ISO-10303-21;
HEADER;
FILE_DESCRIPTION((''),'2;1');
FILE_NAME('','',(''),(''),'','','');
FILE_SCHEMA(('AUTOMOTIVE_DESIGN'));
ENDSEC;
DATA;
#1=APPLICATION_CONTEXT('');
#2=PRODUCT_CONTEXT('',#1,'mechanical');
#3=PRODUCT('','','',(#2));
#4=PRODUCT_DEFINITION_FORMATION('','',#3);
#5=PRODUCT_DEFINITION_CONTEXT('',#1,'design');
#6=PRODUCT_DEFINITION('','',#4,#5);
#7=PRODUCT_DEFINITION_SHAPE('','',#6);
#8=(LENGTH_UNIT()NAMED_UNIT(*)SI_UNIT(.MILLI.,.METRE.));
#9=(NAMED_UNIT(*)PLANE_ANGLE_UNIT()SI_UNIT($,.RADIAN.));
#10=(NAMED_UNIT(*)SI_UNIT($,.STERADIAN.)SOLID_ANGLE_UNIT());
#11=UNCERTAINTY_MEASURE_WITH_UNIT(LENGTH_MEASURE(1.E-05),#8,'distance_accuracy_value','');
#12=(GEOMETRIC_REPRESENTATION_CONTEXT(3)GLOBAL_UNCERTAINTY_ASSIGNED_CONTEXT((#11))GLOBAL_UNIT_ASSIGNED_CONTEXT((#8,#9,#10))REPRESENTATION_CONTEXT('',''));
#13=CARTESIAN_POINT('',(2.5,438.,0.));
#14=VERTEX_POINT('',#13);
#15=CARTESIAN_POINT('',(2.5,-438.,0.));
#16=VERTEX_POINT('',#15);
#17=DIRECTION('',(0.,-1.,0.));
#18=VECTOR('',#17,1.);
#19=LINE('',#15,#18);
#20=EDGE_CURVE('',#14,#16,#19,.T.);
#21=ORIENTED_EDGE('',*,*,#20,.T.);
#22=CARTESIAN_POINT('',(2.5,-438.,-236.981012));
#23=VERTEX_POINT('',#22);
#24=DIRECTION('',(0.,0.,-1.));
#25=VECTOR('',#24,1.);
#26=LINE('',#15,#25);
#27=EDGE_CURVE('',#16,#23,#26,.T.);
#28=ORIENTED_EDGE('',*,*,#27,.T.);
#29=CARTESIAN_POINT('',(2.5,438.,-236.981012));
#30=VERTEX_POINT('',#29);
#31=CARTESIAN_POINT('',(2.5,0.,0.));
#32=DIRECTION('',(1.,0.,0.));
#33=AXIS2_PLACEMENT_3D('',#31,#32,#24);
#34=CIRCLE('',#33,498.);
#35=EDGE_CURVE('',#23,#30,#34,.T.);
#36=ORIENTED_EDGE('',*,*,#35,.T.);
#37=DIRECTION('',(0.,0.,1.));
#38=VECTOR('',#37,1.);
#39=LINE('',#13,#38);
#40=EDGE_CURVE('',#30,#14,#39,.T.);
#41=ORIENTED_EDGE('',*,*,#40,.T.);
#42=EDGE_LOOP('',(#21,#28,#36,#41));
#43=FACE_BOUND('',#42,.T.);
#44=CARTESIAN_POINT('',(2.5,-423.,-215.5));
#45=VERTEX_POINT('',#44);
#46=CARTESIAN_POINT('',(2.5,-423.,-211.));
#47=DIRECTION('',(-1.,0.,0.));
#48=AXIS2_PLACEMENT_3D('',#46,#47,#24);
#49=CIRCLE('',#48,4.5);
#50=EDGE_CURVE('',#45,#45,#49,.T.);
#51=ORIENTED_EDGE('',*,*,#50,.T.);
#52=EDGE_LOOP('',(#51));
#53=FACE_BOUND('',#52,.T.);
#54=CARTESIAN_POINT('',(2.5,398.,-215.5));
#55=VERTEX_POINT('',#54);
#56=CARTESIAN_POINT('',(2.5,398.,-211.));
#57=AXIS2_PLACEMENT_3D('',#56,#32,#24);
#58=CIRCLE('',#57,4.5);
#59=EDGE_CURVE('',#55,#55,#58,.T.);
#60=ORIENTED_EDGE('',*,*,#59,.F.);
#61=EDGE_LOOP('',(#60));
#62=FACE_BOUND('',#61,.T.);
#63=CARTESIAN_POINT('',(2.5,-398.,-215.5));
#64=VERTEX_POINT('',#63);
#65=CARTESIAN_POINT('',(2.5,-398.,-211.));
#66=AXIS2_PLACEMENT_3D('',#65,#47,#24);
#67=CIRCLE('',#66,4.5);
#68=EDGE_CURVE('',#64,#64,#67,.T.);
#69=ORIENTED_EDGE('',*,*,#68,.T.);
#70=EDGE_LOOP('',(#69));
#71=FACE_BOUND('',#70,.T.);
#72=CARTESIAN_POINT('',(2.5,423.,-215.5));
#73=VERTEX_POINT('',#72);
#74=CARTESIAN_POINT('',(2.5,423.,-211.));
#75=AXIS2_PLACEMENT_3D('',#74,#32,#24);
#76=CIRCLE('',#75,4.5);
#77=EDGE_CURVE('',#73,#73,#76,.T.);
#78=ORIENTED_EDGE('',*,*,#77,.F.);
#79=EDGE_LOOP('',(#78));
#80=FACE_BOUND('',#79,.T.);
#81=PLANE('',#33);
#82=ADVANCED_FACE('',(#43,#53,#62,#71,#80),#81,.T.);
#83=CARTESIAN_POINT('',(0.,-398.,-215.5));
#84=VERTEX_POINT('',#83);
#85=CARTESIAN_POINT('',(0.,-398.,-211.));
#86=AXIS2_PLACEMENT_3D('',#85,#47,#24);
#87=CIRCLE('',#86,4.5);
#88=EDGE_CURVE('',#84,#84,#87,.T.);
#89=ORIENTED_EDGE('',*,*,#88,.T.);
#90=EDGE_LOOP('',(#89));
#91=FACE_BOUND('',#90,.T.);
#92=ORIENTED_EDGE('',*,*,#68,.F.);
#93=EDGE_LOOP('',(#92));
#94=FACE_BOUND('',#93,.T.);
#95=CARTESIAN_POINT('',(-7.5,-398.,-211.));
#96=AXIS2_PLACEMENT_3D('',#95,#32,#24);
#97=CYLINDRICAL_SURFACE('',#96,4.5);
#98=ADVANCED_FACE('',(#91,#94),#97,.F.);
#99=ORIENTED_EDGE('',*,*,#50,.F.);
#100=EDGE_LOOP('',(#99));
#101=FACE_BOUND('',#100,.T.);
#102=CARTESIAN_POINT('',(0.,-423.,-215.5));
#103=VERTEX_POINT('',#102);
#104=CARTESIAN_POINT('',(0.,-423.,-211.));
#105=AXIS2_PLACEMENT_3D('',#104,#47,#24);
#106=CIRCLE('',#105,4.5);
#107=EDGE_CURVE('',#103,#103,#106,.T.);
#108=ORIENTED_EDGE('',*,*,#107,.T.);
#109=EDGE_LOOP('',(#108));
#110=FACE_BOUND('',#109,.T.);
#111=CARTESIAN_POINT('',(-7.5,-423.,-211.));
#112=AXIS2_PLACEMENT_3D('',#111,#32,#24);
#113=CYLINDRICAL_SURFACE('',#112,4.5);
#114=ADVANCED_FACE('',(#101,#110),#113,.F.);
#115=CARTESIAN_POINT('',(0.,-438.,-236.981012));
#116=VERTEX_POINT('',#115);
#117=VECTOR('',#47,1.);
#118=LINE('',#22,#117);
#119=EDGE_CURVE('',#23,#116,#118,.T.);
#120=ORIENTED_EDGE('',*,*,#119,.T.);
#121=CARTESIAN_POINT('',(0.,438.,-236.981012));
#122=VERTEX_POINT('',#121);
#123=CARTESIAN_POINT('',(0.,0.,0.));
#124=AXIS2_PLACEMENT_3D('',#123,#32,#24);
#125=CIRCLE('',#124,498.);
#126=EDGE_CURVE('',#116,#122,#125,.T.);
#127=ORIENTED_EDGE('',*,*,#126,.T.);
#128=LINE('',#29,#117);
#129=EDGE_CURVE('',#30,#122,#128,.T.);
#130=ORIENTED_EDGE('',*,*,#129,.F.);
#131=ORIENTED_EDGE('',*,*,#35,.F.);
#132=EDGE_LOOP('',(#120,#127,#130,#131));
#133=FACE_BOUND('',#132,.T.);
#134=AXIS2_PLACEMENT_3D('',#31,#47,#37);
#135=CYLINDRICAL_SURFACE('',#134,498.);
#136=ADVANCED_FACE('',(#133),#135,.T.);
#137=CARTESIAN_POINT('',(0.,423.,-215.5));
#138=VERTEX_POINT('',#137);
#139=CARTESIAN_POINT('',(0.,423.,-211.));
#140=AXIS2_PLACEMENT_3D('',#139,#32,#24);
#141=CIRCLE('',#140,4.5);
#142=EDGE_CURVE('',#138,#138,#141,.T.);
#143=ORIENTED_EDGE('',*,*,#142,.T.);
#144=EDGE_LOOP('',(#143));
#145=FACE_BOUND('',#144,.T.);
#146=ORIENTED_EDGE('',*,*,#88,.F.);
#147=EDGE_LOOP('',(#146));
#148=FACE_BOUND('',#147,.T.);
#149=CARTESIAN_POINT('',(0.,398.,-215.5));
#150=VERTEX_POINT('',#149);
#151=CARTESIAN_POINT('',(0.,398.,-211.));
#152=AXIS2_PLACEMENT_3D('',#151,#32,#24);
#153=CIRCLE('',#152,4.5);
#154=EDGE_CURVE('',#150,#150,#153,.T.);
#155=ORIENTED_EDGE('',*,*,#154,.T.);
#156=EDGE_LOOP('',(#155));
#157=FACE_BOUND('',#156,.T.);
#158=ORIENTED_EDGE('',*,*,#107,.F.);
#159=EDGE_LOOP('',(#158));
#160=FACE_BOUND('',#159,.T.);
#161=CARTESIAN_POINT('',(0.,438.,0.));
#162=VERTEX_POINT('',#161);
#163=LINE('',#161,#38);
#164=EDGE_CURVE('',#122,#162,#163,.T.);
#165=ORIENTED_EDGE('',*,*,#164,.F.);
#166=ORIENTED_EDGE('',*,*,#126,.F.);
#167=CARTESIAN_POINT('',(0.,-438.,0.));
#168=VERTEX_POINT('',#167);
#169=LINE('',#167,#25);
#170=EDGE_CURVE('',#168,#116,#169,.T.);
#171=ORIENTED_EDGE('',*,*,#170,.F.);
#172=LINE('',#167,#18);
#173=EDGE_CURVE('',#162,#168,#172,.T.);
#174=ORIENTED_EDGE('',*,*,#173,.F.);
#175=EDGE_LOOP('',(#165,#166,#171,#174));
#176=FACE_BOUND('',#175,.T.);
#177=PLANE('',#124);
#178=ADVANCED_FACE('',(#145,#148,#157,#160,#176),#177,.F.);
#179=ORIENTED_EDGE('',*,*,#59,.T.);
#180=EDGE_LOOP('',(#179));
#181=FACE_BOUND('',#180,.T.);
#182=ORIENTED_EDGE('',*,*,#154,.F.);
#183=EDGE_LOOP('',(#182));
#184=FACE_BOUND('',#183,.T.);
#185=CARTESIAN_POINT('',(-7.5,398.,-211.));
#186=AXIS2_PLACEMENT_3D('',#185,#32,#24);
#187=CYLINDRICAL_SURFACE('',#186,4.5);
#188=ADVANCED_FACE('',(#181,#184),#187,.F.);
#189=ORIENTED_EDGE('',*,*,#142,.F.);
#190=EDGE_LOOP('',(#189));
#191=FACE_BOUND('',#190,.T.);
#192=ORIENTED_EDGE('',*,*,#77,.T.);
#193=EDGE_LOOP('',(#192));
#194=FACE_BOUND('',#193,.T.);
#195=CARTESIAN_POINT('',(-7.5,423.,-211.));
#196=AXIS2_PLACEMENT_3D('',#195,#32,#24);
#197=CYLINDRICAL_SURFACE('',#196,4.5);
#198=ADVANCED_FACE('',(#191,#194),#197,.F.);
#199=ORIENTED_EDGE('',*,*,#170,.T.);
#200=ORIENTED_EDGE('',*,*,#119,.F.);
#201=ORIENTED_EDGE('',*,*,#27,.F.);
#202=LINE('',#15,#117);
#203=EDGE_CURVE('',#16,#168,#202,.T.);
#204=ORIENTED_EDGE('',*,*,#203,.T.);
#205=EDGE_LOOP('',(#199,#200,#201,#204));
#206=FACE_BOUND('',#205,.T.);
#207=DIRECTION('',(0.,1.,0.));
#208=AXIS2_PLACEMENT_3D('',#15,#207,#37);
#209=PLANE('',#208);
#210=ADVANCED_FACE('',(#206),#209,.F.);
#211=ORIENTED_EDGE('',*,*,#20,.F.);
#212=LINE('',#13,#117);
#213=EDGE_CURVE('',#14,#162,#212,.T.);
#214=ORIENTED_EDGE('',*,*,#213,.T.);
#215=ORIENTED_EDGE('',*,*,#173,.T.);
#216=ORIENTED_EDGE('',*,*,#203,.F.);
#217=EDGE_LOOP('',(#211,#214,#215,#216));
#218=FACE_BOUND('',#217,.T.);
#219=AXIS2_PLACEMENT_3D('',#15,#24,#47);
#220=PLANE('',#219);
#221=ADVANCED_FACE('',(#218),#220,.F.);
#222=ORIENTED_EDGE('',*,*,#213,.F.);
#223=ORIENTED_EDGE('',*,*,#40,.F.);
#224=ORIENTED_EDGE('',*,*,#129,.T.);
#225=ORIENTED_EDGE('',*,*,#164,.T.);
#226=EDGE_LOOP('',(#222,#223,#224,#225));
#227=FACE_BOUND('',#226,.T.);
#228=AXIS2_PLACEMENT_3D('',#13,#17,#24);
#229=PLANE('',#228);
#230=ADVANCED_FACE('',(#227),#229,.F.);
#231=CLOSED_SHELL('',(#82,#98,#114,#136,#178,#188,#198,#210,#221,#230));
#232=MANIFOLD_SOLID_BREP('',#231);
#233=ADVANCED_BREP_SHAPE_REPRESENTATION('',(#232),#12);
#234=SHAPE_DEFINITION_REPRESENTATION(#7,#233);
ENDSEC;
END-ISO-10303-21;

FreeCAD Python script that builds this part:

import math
import FreeCAD as App
import Part
import Sketcher

doc = App.newDocument("Part")
body = doc.addObject("PartDesign::Body", "Body")

# Sketch on YZ plane
sketch1 = body.newObject("Sketcher::SketchObject", "Sketch")
sketch1.AttachmentSupport = (doc.getObject("YZ_Plane"), [""])
sketch1.MapMode = "FlatFace"
sketch1.addGeometry([
    Part.LineSegment(App.Vector(438, -237, 0), App.Vector(438, 0, 0)),
    Part.LineSegment(App.Vector(438, 0, 0), App.Vector(-438, 0, 0)),
    Part.LineSegment(App.Vector(-438, 0, 0), App.Vector(-438, -237, 0)),
    Part.ArcOfCircle(Part.Circle(App.Vector(0, 0, 0), App.Vector(0, 0, 1), 498), math.radians(-152), math.radians(-28)),
], False)
sketch1.addConstraint([
    Sketcher.Constraint("Coincident", 0, 2, 1, 1),
    Sketcher.Constraint("Coincident", 1, 2, 2, 1),
    Sketcher.Constraint("Coincident", 2, 2, 3, 1),
    Sketcher.Constraint("Coincident", 3, 2, 0, 1),
    Sketcher.Constraint("Vertical", 0),
    Sketcher.Constraint("Horizontal", 1),
    Sketcher.Constraint("Vertical", 2),
    Sketcher.Constraint("Coincident", 3, 3, -1, 1),
    Sketcher.Constraint("Symmetric", 0, 2, 1, 2, -1, 1),
    Sketcher.Constraint("Radius", 3, 498.0),
    Sketcher.Constraint("DistanceX", 1, 2, 1, 1, 876.0),
])
pad1 = body.newObject("PartDesign::Pad", "Pad")
pad1.Profile = sketch1
pad1.Length = 2.5

# Sketch on YZ plane
sketch2 = body.newObject("Sketcher::SketchObject", "Sketch001")
sketch2.AttachmentSupport = (doc.getObject("YZ_Plane"), [""])
sketch2.MapMode = "FlatFace"
sketch2.AttachmentOffset = App.Placement(App.Vector(0, 0, 2.5), App.Rotation())
sketch2.addGeometry(Part.Circle(App.Vector(423, -211, 0), App.Vector(0, 0, 1), 4.5), False)
sketch2.addConstraint([
    Sketcher.Constraint("Diameter", 0, 9.0),
    Sketcher.Constraint("DistanceX", -1, 1, 0, 3, 423.0),
    Sketcher.Constraint("DistanceY", 0, 3, -1, 1, 211.0),
])
pocket1 = body.newObject("PartDesign::Pocket", "Pocket")
pocket1.Profile = sketch2
pocket1.Length = 10
doc.recompute()

linearpattern = body.newObject("PartDesign::LinearPattern", "LinearPattern")
linearpattern.Originals = [pocket1]
linearpattern.Direction = (doc.getObject("Y_Axis"), [""])
linearpattern.Mode = "offset"
linearpattern.Offset = 25
linearpattern.Occurrences = 2
linearpattern.Reversed = True
body.Tip = linearpattern
doc.recompute()

mirrored = body.newObject("PartDesign::Mirrored", "Mirrored")
mirrored.Originals = [pocket1]
mirrored.MirrorPlane = (doc.getObject("XZ_Plane"), [""])
body.Tip = mirrored

# Sketch on YZ plane
sketch3 = body.newObject("Sketcher::SketchObject", "Sketch002")
sketch3.AttachmentSupport = (doc.getObject("YZ_Plane"), [""])
sketch3.MapMode = "FlatFace"
sketch3.AttachmentOffset = App.Placement(App.Vector(0, 0, 2.5), App.Rotation())
sketch3.addGeometry(Part.Circle(App.Vector(-398, -211, 0), App.Vector(0, 0, 1), 4.5), False)
sketch3.addConstraint([
    Sketcher.Constraint("Diameter", 0, 9.0),
    Sketcher.Constraint("DistanceX", 0, 3, -1, 1, 398.0),
    Sketcher.Constraint("DistanceY", 0, 3, -1, 1, 211.0),
])
pocket2 = body.newObject("PartDesign::Pocket", "Pocket001")
pocket2.Profile = sketch3
pocket2.Length = 10

doc.recompute()
